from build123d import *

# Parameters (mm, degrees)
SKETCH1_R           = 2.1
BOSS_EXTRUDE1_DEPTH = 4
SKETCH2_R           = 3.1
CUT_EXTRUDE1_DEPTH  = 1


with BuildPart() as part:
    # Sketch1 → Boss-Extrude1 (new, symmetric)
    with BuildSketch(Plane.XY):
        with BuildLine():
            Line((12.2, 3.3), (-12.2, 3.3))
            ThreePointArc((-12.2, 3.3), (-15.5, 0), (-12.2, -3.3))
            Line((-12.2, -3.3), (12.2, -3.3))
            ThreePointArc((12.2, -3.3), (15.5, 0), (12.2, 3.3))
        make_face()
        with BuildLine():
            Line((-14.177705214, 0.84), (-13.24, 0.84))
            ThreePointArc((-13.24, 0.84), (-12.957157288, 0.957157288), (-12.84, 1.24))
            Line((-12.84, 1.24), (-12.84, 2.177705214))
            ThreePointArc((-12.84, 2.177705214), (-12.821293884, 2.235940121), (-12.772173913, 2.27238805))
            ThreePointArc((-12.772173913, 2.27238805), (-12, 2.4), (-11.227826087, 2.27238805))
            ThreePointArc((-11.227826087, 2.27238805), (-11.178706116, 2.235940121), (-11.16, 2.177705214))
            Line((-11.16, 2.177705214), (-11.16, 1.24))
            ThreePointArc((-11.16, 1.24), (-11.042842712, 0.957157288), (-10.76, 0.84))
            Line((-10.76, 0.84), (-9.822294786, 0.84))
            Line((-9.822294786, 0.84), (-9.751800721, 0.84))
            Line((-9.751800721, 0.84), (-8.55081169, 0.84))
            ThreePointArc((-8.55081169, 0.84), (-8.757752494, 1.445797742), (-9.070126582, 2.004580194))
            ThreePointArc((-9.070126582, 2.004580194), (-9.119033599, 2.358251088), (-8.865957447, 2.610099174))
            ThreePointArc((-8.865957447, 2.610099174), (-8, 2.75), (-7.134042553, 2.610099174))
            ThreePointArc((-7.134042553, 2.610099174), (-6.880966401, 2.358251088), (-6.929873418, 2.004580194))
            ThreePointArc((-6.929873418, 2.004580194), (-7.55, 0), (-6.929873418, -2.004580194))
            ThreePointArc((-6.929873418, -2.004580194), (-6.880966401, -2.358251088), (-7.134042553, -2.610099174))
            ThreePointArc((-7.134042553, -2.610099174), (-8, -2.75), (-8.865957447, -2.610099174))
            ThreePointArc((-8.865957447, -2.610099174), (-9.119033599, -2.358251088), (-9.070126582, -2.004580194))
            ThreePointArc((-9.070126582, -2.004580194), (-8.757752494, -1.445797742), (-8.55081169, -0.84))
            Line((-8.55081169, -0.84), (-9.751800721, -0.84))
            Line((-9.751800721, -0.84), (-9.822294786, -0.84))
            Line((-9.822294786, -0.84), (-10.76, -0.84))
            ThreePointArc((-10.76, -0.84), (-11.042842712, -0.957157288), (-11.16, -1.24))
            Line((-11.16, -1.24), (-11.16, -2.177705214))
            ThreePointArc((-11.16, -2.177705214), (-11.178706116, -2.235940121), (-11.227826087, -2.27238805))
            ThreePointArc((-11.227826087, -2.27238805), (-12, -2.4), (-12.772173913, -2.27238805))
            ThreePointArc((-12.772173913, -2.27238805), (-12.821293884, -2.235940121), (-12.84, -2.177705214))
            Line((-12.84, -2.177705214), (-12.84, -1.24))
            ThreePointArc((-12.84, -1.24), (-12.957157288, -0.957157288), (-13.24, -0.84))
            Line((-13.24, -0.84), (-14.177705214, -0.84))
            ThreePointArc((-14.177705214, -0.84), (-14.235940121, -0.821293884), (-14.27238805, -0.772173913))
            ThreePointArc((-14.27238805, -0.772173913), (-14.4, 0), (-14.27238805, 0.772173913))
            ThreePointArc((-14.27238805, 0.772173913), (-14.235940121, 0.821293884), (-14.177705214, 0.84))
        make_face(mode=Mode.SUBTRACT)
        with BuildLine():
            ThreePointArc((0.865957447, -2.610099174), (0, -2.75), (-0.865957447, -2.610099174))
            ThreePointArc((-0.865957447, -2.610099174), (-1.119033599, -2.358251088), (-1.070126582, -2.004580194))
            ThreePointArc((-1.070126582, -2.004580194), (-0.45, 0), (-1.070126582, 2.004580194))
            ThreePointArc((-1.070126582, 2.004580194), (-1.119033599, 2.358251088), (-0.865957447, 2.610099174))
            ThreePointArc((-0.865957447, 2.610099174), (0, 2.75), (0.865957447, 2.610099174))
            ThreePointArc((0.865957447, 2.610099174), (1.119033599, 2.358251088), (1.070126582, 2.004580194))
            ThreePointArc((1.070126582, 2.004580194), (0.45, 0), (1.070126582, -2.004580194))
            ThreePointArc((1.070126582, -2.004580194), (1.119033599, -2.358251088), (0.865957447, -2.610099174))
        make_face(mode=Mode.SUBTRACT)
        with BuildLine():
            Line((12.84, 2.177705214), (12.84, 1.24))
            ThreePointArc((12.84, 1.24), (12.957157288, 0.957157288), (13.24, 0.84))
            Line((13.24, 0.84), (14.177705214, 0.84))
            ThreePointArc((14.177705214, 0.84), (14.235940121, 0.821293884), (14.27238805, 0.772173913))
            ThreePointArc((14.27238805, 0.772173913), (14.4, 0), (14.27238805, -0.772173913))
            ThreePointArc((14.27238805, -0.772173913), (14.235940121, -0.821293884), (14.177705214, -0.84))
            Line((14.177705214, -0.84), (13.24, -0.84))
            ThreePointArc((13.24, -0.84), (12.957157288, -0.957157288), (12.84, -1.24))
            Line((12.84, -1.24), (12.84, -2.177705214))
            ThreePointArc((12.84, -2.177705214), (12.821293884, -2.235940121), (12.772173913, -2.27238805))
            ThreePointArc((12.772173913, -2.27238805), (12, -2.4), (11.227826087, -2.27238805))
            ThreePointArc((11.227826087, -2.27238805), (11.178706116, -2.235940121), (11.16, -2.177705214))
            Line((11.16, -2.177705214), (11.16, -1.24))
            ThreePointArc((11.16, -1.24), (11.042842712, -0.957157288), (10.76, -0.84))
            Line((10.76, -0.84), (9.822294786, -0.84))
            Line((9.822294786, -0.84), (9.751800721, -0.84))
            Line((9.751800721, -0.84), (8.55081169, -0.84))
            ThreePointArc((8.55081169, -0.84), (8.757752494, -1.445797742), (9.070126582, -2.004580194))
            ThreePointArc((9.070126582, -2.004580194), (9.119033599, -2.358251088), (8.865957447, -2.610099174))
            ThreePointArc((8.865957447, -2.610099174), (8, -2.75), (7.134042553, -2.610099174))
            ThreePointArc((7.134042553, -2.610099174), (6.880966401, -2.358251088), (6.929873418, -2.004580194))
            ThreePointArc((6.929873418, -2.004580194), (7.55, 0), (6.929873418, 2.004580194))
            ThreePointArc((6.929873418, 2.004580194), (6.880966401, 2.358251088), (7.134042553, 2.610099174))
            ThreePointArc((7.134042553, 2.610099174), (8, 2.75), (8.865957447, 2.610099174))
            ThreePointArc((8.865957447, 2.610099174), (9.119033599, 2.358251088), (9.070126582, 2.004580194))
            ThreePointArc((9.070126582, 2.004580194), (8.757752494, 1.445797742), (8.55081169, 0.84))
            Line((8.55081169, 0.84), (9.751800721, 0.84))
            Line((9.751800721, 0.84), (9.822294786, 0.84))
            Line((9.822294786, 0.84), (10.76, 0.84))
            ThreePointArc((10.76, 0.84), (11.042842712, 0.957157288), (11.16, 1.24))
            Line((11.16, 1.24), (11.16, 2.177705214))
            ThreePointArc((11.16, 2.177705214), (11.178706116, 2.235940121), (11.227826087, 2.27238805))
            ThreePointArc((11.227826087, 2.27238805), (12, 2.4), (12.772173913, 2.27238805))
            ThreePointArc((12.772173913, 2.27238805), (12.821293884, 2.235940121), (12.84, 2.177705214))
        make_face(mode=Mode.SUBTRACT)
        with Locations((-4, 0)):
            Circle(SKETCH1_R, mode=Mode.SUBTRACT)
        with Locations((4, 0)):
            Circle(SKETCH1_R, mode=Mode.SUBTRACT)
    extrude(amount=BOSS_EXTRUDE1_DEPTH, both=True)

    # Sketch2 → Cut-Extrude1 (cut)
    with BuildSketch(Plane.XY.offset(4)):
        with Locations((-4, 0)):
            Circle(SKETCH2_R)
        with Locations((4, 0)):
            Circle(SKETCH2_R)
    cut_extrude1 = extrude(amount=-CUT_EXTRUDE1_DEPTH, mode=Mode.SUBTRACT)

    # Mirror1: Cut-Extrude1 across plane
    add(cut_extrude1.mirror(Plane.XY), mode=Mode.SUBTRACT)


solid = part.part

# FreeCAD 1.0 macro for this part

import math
import FreeCAD as App
import Part
import Sketcher
Q = App.Units.Quantity

doc = App.newDocument("Part")
params = doc.addObject("Spreadsheet::Sheet", "Params")
for row, (alias, value) in enumerate([
    ("sketch1_diameter", "4.2 mm"),
    ("sketch1_radius", "3.3 mm"),
    ("sketch1_radius2", "0.1 mm"),
    ("sketch1_radius3", "0.4 mm"),
    ("sketch1_radius4", "2.4 mm"),
    ("pad1_length", "8 mm"),
    ("sketch2_diameter", "6.2 mm"),
    ("pocket1_length", "1 mm"),
], start=1):
    params.set(f"A{row}", alias)
    params.set(f"B{row}", "=" + value)
    params.setAlias(f"B{row}", alias)

body = doc.addObject("PartDesign::Body", "Body")

# Sketch on XY plane
sketch1 = doc.addObject("Sketcher::SketchObject", "Sketch")
body.addObject(sketch1)
sketch1.AttachmentSupport = (doc.XY_Plane, [""])
sketch1.MapMode = "FlatFace"
sketch1.addGeometry([
    Part.LineSegment(App.Vector(12.2, 3.3, 0), App.Vector(-12.2, 3.3, 0)),  # 0
    Part.ArcOfCircle(Part.Circle(App.Vector(-12.2, 0, 0), App.Vector(0, 0, 1), 3.3), math.radians(90), math.radians(270)),  # 1
    Part.LineSegment(App.Vector(-12.2, -3.3, 0), App.Vector(12.2, -3.3, 0)),  # 2
    Part.ArcOfCircle(Part.Circle(App.Vector(12.2, 0, 0), App.Vector(0, 0, 1), 3.3), math.radians(-90), math.radians(90)),  # 3
    Part.ArcOfCircle(Part.Circle(App.Vector(-14.177705, 0.74, 0), App.Vector(0, 0, 1), 0.1), math.radians(90.000001), math.radians(161.231866)),  # 4
    Part.LineSegment(App.Vector(-14.177705, 0.84, 0), App.Vector(-13.24, 0.84, 0)),  # 5
    Part.ArcOfCircle(Part.Circle(App.Vector(-13.24, 1.24, 0), App.Vector(0, 0, 1), 0.4), math.radians(-90), math.radians(0)),  # 6
    Part.LineSegment(App.Vector(-12.84, 1.24, 0), App.Vector(-12.84, 2.177705, 0)),  # 7
    Part.ArcOfCircle(Part.Circle(App.Vector(-12.74, 2.177705, 0), App.Vector(0, 0, 1), 0.1), math.radians(108.768134), math.radians(179.999999)),  # 8
    Part.ArcOfCircle(Part.Circle(App.Vector(-12, 0, 0), App.Vector(0, 0, 1), 2.4), math.radians(71.231867), math.radians(108.768133)),  # 9
    Part.ArcOfCircle(Part.Circle(App.Vector(-11.26, 2.177705, 0), App.Vector(0, 0, 1), 0.1), math.radians(0.000001), math.radians(71.231866)),  # 10
    Part.LineSegment(App.Vector(-11.16, 2.177705, 0), App.Vector(-11.16, 1.24, 0)),  # 11
    Part.ArcOfCircle(Part.Circle(App.Vector(-10.76, 1.24, 0), App.Vector(0, 0, 1), 0.4), math.radians(-180), math.radians(-90)),  # 12
    Part.LineSegment(App.Vector(-10.76, 0.84, 0), App.Vector(-8.550812, 0.84, 0)),  # 13
    Part.ArcOfCircle(Part.Circle(App.Vector(-12, 0, 0), App.Vector(0, 0, 1), 3.55), math.radians(13.687119), math.radians(34.379412)),  # 14
    Part.ArcOfCircle(Part.Circle(App.Vector(-8.74, 2.230448, 0), App.Vector(0, 0, 1), 0.4), math.radians(108.354392), math.radians(214.379412)),  # 15
    Part.ArcOfCircle(Part.Circle(App.Vector(-8, 0, 0), App.Vector(0, 0, 1), 2.75), math.radians(71.645608), math.radians(108.354392)),  # 16
    Part.ArcOfCircle(Part.Circle(App.Vector(-7.26, 2.230448, 0), App.Vector(0, 0, 1), 0.4), math.radians(-34.379412), math.radians(71.645608)),  # 17
    Part.ArcOfCircle(Part.Circle(App.Vector(-4, 0, 0), App.Vector(0, 0, 1), 3.55), math.radians(145.620588), math.radians(214.379412)),  # 18
    Part.ArcOfCircle(Part.Circle(App.Vector(-7.26, -2.230448, 0), App.Vector(0, 0, 1), 0.4), math.radians(-71.645608), math.radians(34.379412)),  # 19
    Part.ArcOfCircle(Part.Circle(App.Vector(-8, 0, 0), App.Vector(0, 0, 1), 2.75), math.radians(-108.354392), math.radians(-71.645608)),  # 20
    Part.ArcOfCircle(Part.Circle(App.Vector(-8.74, -2.230448, 0), App.Vector(0, 0, 1), 0.4), math.radians(145.620588), math.radians(251.645608)),  # 21
    Part.ArcOfCircle(Part.Circle(App.Vector(-12, 0, 0), App.Vector(0, 0, 1), 3.55), math.radians(-34.379412), math.radians(-13.687119)),  # 22
    Part.LineSegment(App.Vector(-8.550812, -0.84, 0), App.Vector(-10.76, -0.84, 0)),  # 23
    Part.ArcOfCircle(Part.Circle(App.Vector(-10.76, -1.24, 0), App.Vector(0, 0, 1), 0.4), math.radians(90), math.radians(180)),  # 24
    Part.LineSegment(App.Vector(-11.16, -1.24, 0), App.Vector(-11.16, -2.177705, 0)),  # 25
    Part.ArcOfCircle(Part.Circle(App.Vector(-11.26, -2.177705, 0), App.Vector(0, 0, 1), 0.1), math.radians(-71.231866), math.radians(-0.000001)),  # 26
    Part.ArcOfCircle(Part.Circle(App.Vector(-12, 0, 0), App.Vector(0, 0, 1), 2.4), math.radians(-108.768133), math.radians(-71.231867)),  # 27
    Part.ArcOfCircle(Part.Circle(App.Vector(-12.74, -2.177705, 0), App.Vector(0, 0, 1), 0.1), math.radians(-179.999999), math.radians(-108.768134)),  # 28
    Part.LineSegment(App.Vector(-12.84, -2.177705, 0), App.Vector(-12.84, -1.24, 0)),  # 29
    Part.ArcOfCircle(Part.Circle(App.Vector(-13.24, -1.24, 0), App.Vector(0, 0, 1), 0.4), math.radians(0), math.radians(90)),  # 30
    Part.LineSegment(App.Vector(-13.24, -0.84, 0), App.Vector(-14.177705, -0.84, 0)),  # 31
    Part.ArcOfCircle(Part.Circle(App.Vector(-14.177705, -0.74, 0), App.Vector(0, 0, 1), 0.1), math.radians(-161.231866), math.radians(-90.000001)),  # 32
    Part.ArcOfCircle(Part.Circle(App.Vector(-12, 0, 0), App.Vector(0, 0, 1), 2.4), math.radians(161.231867), math.radians(198.768133)),  # 33
    Part.Circle(App.Vector(-4, 0, 0), App.Vector(0, 0, 1), 2.1),  # 34
    Part.ArcOfCircle(Part.Circle(App.Vector(0.74, -2.230448, 0), App.Vector(0, 0, 1), 0.4), math.radians(-71.645608), math.radians(34.379412)),  # 35
    Part.ArcOfCircle(Part.Circle(App.Vector(0, 0, 0), App.Vector(0, 0, 1), 2.75), math.radians(-108.354392), math.radians(-71.645608)),  # 36
    Part.ArcOfCircle(Part.Circle(App.Vector(-0.74, -2.230448, 0), App.Vector(0, 0, 1), 0.4), math.radians(145.620588), math.radians(251.645608)),  # 37
    Part.ArcOfCircle(Part.Circle(App.Vector(-4, 0, 0), App.Vector(0, 0, 1), 3.55), math.radians(-34.379412), math.radians(34.379412)),  # 38
    Part.ArcOfCircle(Part.Circle(App.Vector(-0.74, 2.230448, 0), App.Vector(0, 0, 1), 0.4), math.radians(108.354392), math.radians(214.379412)),  # 39
    Part.ArcOfCircle(Part.Circle(App.Vector(0, 0, 0), App.Vector(0, 0, 1), 2.75), math.radians(71.645608), math.radians(108.354392)),  # 40
    Part.ArcOfCircle(Part.Circle(App.Vector(0.74, 2.230448, 0), App.Vector(0, 0, 1), 0.4), math.radians(-34.379412), math.radians(71.645608)),  # 41
    Part.ArcOfCircle(Part.Circle(App.Vector(4, 0, 0), App.Vector(0, 0, 1), 3.55), math.radians(145.620588), math.radians(214.379412)),  # 42
    Part.Circle(App.Vector(4, 0, 0), App.Vector(0, 0, 1), 2.1),  # 43
    Part.ArcOfCircle(Part.Circle(App.Vector(12.74, 2.177705, 0), App.Vector(0, 0, 1), 0.1), math.radians(0.000001), math.radians(71.231866)),  # 44
    Part.LineSegment(App.Vector(12.84, 2.177705, 0), App.Vector(12.84, 1.24, 0)),  # 45
    Part.ArcOfCircle(Part.Circle(App.Vector(13.24, 1.24, 0), App.Vector(0, 0, 1), 0.4), math.radians(-180), math.radians(-90)),  # 46
    Part.LineSegment(App.Vector(13.24, 0.84, 0), App.Vector(14.177705, 0.84, 0)),  # 47
    Part.ArcOfCircle(Part.Circle(App.Vector(14.177705, 0.74, 0), App.Vector(0, 0, 1), 0.1), math.radians(18.768134), math.radians(89.999999)),  # 48
    Part.ArcOfCircle(Part.Circle(App.Vector(12, 0, 0), App.Vector(0, 0, 1), 2.4), math.radians(-18.768133), math.radians(18.768133)),  # 49
    Part.ArcOfCircle(Part.Circle(App.Vector(14.177705, -0.74, 0), App.Vector(0, 0, 1), 0.1), math.radians(-89.999999), math.radians(-18.768134)),  # 50
    Part.LineSegment(App.Vector(14.177705, -0.84, 0), App.Vector(13.24, -0.84, 0)),  # 51
    Part.ArcOfCircle(Part.Circle(App.Vector(13.24, -1.24, 0), App.Vector(0, 0, 1), 0.4), math.radians(90), math.radians(180)),  # 52
    Part.LineSegment(App.Vector(12.84, -1.24, 0), App.Vector(12.84, -2.177705, 0)),  # 53
    Part.ArcOfCircle(Part.Circle(App.Vector(12.74, -2.177705, 0), App.Vector(0, 0, 1), 0.1), math.radians(-71.231866), math.radians(-0.000001)),  # 54
    Part.ArcOfCircle(Part.Circle(App.Vector(12, 0, 0), App.Vector(0, 0, 1), 2.4), math.radians(-108.768133), math.radians(-71.231867)),  # 55
    Part.ArcOfCircle(Part.Circle(App.Vector(11.26, -2.177705, 0), App.Vector(0, 0, 1), 0.1), math.radians(-179.999999), math.radians(-108.768134)),  # 56
    Part.LineSegment(App.Vector(11.16, -2.177705, 0), App.Vector(11.16, -1.24, 0)),  # 57
    Part.ArcOfCircle(Part.Circle(App.Vector(10.76, -1.24, 0), App.Vector(0, 0, 1), 0.4), math.radians(0), math.radians(90)),  # 58
    Part.LineSegment(App.Vector(10.76, -0.84, 0), App.Vector(8.550812, -0.84, 0)),  # 59
    Part.ArcOfCircle(Part.Circle(App.Vector(12, 0, 0), App.Vector(0, 0, 1), 3.55), math.radians(-166.312881), math.radians(-145.620588)),  # 60
    Part.ArcOfCircle(Part.Circle(App.Vector(8.74, -2.230448, 0), App.Vector(0, 0, 1), 0.4), math.radians(-71.645608), math.radians(34.379412)),  # 61
    Part.ArcOfCircle(Part.Circle(App.Vector(8, 0, 0), App.Vector(0, 0, 1), 2.75), math.radians(-108.354392), math.radians(-71.645608)),  # 62
    Part.ArcOfCircle(Part.Circle(App.Vector(7.26, -2.230448, 0), App.Vector(0, 0, 1), 0.4), math.radians(145.620588), math.radians(251.645608)),  # 63
    Part.ArcOfCircle(Part.Circle(App.Vector(4, 0, 0), App.Vector(0, 0, 1), 3.55), math.radians(-34.379412), math.radians(34.379412)),  # 64
    Part.ArcOfCircle(Part.Circle(App.Vector(7.26, 2.230448, 0), App.Vector(0, 0, 1), 0.4), math.radians(108.354392), math.radians(214.379412)),  # 65
    Part.ArcOfCircle(Part.Circle(App.Vector(8, 0, 0), App.Vector(0, 0, 1), 2.75), math.radians(71.645608), math.radians(108.354392)),  # 66
    Part.ArcOfCircle(Part.Circle(App.Vector(8.74, 2.230448, 0), App.Vector(0, 0, 1), 0.4), math.radians(-34.379412), math.radians(71.645608)),  # 67
    Part.ArcOfCircle(Part.Circle(App.Vector(12, 0, 0), App.Vector(0, 0, 1), 3.55), math.radians(145.620588), math.radians(166.312881)),  # 68
    Part.LineSegment(App.Vector(8.550812, 0.84, 0), App.Vector(10.76, 0.84, 0)),  # 69
    Part.ArcOfCircle(Part.Circle(App.Vector(10.76, 1.24, 0), App.Vector(0, 0, 1), 0.4), math.radians(-90), math.radians(0)),  # 70
    Part.LineSegment(App.Vector(11.16, 1.24, 0), App.Vector(11.16, 2.177705, 0)),  # 71
    Part.ArcOfCircle(Part.Circle(App.Vector(11.26, 2.177705, 0), App.Vector(0, 0, 1), 0.1), math.radians(108.768134), math.radians(179.999999)),  # 72
    Part.ArcOfCircle(Part.Circle(App.Vector(12, 0, 0), App.Vector(0, 0, 1), 2.4), math.radians(71.231867), math.radians(108.768133)),  # 73
], False)
sketch1.addConstraint([
    Sketcher.Constraint("Tangent", 0, 2, 1, 1),
    Sketcher.Constraint("Tangent", 1, 2, 2, 1),
    Sketcher.Constraint("Tangent", 2, 2, 3, 1),
    Sketcher.Constraint("Tangent", 3, 2, 0, 1),
    Sketcher.Constraint("Tangent", 4, 1, 5, 1),
    Sketcher.Constraint("Tangent", 5, 2, 6, 1),
    Sketcher.Constraint("Tangent", 6, 2, 7, 1),
    Sketcher.Constraint("Tangent", 7, 2, 8, 2),
    Sketcher.Constraint("Tangent", 8, 1, 9, 2),
    Sketcher.Constraint("Tangent", 9, 1, 10, 2),
    Sketcher.Constraint("Tangent", 10, 1, 11, 1),
    Sketcher.Constraint("Tangent", 11, 2, 12, 1),
    Sketcher.Constraint("Tangent", 12, 2, 13, 1),
    Sketcher.Constraint("Coincident", 13, 2, 14, 1),
    Sketcher.Constraint("Tangent", 14, 2, 15, 2),
    Sketcher.Constraint("Tangent", 15, 1, 16, 2),
    Sketcher.Constraint("Tangent", 16, 1, 17, 2),
    Sketcher.Constraint("Tangent", 17, 1, 18, 1),
    Sketcher.Constraint("Tangent", 18, 2, 19, 2),
    Sketcher.Constraint("Tangent", 19, 1, 20, 2),
    Sketcher.Constraint("Tangent", 20, 1, 21, 2),
    Sketcher.Constraint("Tangent", 21, 1, 22, 1),
    Sketcher.Constraint("Coincident", 22, 2, 23, 1),
    Sketcher.Constraint("Tangent", 23, 2, 24, 1),
    Sketcher.Constraint("Tangent", 24, 2, 25, 1),
    Sketcher.Constraint("Tangent", 25, 2, 26, 2),
    Sketcher.Constraint("Tangent", 26, 1, 27, 2),
    Sketcher.Constraint("Tangent", 27, 1, 28, 2),
    Sketcher.Constraint("Tangent", 28, 1, 29, 1),
    Sketcher.Constraint("Tangent", 29, 2, 30, 1),
    Sketcher.Constraint("Tangent", 30, 2, 31, 1),
    Sketcher.Constraint("Tangent", 31, 2, 32, 2),
    Sketcher.Constraint("Tangent", 32, 1, 33, 2),
    Sketcher.Constraint("Tangent", 33, 1, 4, 2),
    Sketcher.Constraint("Tangent", 35, 1, 36, 2),
    Sketcher.Constraint("Tangent", 36, 1, 37, 2),
    Sketcher.Constraint("Tangent", 37, 1, 38, 1),
    Sketcher.Constraint("Tangent", 38, 2, 39, 2),
    Sketcher.Constraint("Tangent", 39, 1, 40, 2),
    Sketcher.Constraint("Tangent", 40, 1, 41, 2),
    Sketcher.Constraint("Tangent", 41, 1, 42, 1),
    Sketcher.Constraint("Tangent", 42, 2, 35, 2),
    Sketcher.Constraint("Tangent", 44, 1, 45, 1),
    Sketcher.Constraint("Tangent", 45, 2, 46, 1),
    Sketcher.Constraint("Tangent", 46, 2, 47, 1),
    Sketcher.Constraint("Tangent", 47, 2, 48, 2),
    Sketcher.Constraint("Tangent", 48, 1, 49, 2),
    Sketcher.Constraint("Tangent", 49, 1, 50, 2),
    Sketcher.Constraint("Tangent", 50, 1, 51, 1),
    Sketcher.Constraint("Tangent", 51, 2, 52, 1),
    Sketcher.Constraint("Tangent", 52, 2, 53, 1),
    Sketcher.Constraint("Tangent", 53, 2, 54, 2),
    Sketcher.Constraint("Tangent", 54, 1, 55, 2),
    Sketcher.Constraint("Tangent", 55, 1, 56, 2),
    Sketcher.Constraint("Tangent", 56, 1, 57, 1),
    Sketcher.Constraint("Tangent", 57, 2, 58, 1),
    Sketcher.Constraint("Tangent", 58, 2, 59, 1),
    Sketcher.Constraint("Coincident", 59, 2, 60, 1),
    Sketcher.Constraint("Tangent", 60, 2, 61, 2),
    Sketcher.Constraint("Tangent", 61, 1, 62, 2),
    Sketcher.Constraint("Tangent", 62, 1, 63, 2),
    Sketcher.Constraint("Tangent", 63, 1, 64, 1),
    Sketcher.Constraint("Tangent", 64, 2, 65, 2),
    Sketcher.Constraint("Tangent", 65, 1, 66, 2),
    Sketcher.Constraint("Tangent", 66, 1, 67, 2),
    Sketcher.Constraint("Tangent", 67, 1, 68, 1),
    Sketcher.Constraint("Coincident", 68, 2, 69, 1),
    Sketcher.Constraint("Tangent", 69, 2, 70, 1),
    Sketcher.Constraint("Tangent", 70, 2, 71, 1),
    Sketcher.Constraint("Tangent", 71, 2, 72, 2),
    Sketcher.Constraint("Tangent", 72, 1, 73, 2),
    Sketcher.Constraint("Tangent", 73, 1, 44, 2),
    Sketcher.Constraint("Horizontal", 0),
    Sketcher.Constraint("Horizontal", 2),
    Sketcher.Constraint("Horizontal", 5),
    Sketcher.Constraint("Vertical", 7),
    Sketcher.Constraint("Vertical", 11),
    Sketcher.Constraint("Horizontal", 13),
    Sketcher.Constraint("Horizontal", 23),
    Sketcher.Constraint("Vertical", 25),
    Sketcher.Constraint("Vertical", 29),
    Sketcher.Constraint("Horizontal", 31),
    Sketcher.Constraint("Vertical", 45),
    Sketcher.Constraint("Horizontal", 47),
    Sketcher.Constraint("Horizontal", 51),
    Sketcher.Constraint("Vertical", 53),
    Sketcher.Constraint("Vertical", 57),
    Sketcher.Constraint("Horizontal", 59),
    Sketcher.Constraint("Horizontal", 69),
    Sketcher.Constraint("Vertical", 71),
    Sketcher.Constraint("Coincident", 36, 3, -1, 1),
    Sketcher.Constraint("Coincident", 40, 3, -1, 1),
    Sketcher.Constraint("Coincident", 14, 3, 9, 3),
    Sketcher.Constraint("Coincident", 20, 3, 16, 3),
    Sketcher.Constraint("Coincident", 22, 3, 9, 3),
    Sketcher.Constraint("Coincident", 27, 3, 9, 3),
    Sketcher.Constraint("Coincident", 33, 3, 9, 3),
    Sketcher.Constraint("Coincident", 34, 3, 18, 3),
    Sketcher.Constraint("Coincident", 38, 3, 18, 3),
    Sketcher.Constraint("Coincident", 43, 3, 42, 3),
    Sketcher.Constraint("Coincident", 55, 3, 49, 3),
    Sketcher.Constraint("Coincident", 60, 3, 49, 3),
    Sketcher.Constraint("Coincident", 64, 3, 42, 3),
    Sketcher.Constraint("Coincident", 66, 3, 62, 3),
    Sketcher.Constraint("Coincident", 68, 3, 49, 3),
    Sketcher.Constraint("Coincident", 73, 3, 49, 3),
    Sketcher.Constraint("Equal", 4, 8),
    Sketcher.Constraint("Equal", 8, 10),
    Sketcher.Constraint("Equal", 6, 12),
    Sketcher.Constraint("Equal", 12, 15),
    Sketcher.Constraint("Equal", 15, 17),
    Sketcher.Constraint("Equal", 14, 18),
    Sketcher.Constraint("Equal", 17, 19),
    Sketcher.Constraint("Equal", 16, 20),
    Sketcher.Constraint("Equal", 19, 21),
    Sketcher.Constraint("Equal", 18, 22),
    Sketcher.Constraint("Equal", 21, 24),
    Sketcher.Constraint("Equal", 10, 26),
    Sketcher.Constraint("Equal", 9, 27),
    Sketcher.Constraint("Equal", 26, 28),
    Sketcher.Constraint("Equal", 24, 30),
    Sketcher.Constraint("Equal", 28, 32),
    Sketcher.Constraint("Equal", 27, 33),
    Sketcher.Constraint("Equal", 30, 35),
    Sketcher.Constraint("Equal", 20, 36),
    Sketcher.Constraint("Equal", 35, 37),
    Sketcher.Constraint("Equal", 22, 38),
    Sketcher.Constraint("Equal", 37, 39),
    Sketcher.Constraint("Equal", 36, 40),
    Sketcher.Constraint("Equal", 39, 41),
    Sketcher.Constraint("Equal", 38, 42),
    Sketcher.Constraint("Equal", 34, 43),
    Sketcher.Constraint("Equal", 32, 44),
    Sketcher.Constraint("Equal", 41, 46),
    Sketcher.Constraint("Equal", 44, 48),
    Sketcher.Constraint("Equal", 33, 49),
    Sketcher.Constraint("Equal", 48, 50),
    Sketcher.Constraint("Equal", 46, 52),
    Sketcher.Constraint("Equal", 50, 54),
    Sketcher.Constraint("Equal", 49, 55),
    Sketcher.Constraint("Equal", 54, 56),
    Sketcher.Constraint("Equal", 52, 58),
    Sketcher.Constraint("Equal", 42, 60),
    Sketcher.Constraint("Equal", 58, 61),
    Sketcher.Constraint("Equal", 40, 62),
    Sketcher.Constraint("Equal", 61, 63),
    Sketcher.Constraint("Equal", 60, 64),
    Sketcher.Constraint("Equal", 63, 65),
    Sketcher.Constraint("Equal", 62, 66),
    Sketcher.Constraint("Equal", 65, 67),
    Sketcher.Constraint("Equal", 64, 68),
    Sketcher.Constraint("Equal", 67, 70),
    Sketcher.Constraint("Equal", 56, 72),
    Sketcher.Constraint("Equal", 55, 73),
    Sketcher.Constraint("Symmetric", 1, 3, 3, 3, -1, 1),
    Sketcher.Constraint("Symmetric", 18, 3, 42, 3, -1, 1),
    Sketcher.Constraint("Symmetric", 28, 3, 44, 3, -1, 1),
    Sketcher.Constraint("Symmetric", 32, 3, 48, 3, -1, 1),
    Sketcher.Constraint("Symmetric", 6, 3, 52, 3, -1, 1),
    Sketcher.Constraint("Symmetric", 12, 3, 58, 3, -1, 1),
    Sketcher.Constraint("Symmetric", 16, 3, 62, 3, -1, 1),
    Sketcher.Constraint("Symmetric", 24, 3, 70, 3, -1, 1),
    Sketcher.Constraint("Symmetric", 8, 3, 44, 3, -2),
    Sketcher.Constraint("Symmetric", 24, 3, 58, 3, -2),
    Sketcher.Constraint("Symmetric", 19, 3, 63, 3, -2),
    Sketcher.Constraint("Horizontal", 8, 3, 10, 3),
    Sketcher.Constraint("Horizontal", 6, 3, 12, 3),
    Sketcher.Constraint("Horizontal", 15, 3, 17, 3),
    Sketcher.Constraint("Horizontal", 24, 3, 30, 3),
    Sketcher.Constraint("Horizontal", 21, 3, 35, 3),
    Sketcher.Constraint("Equal", 51, 7),
    Sketcher.Constraint("Diameter", 34, Q("4.2 mm")),
    Sketcher.Constraint("Radius", 1, Q("3.3 mm")),
    Sketcher.Constraint("Radius", 4, Q("0.1 mm")),
    Sketcher.Constraint("Radius", 6, Q("0.4 mm")),
    Sketcher.Constraint("Radius", 9, Q("2.4 mm")),
    Sketcher.Constraint("Radius", 14, Q("3.55 mm")),
    Sketcher.Constraint("Radius", 16, Q("2.75 mm")),
    Sketcher.Constraint("DistanceX", 0, 2, 0, 1, Q("24.4 mm")),
    Sketcher.Constraint("DistanceX", 9, 3, -1, 1, Q("12 mm")),
    Sketcher.Constraint("DistanceY", -1, 1, 4, 3, Q("0.74 mm")),
])
sketch1.setExpression("Constraints[171]", "Params.sketch1_diameter")
sketch1.setExpression("Constraints[172]", "Params.sketch1_radius")
sketch1.setExpression("Constraints[173]", "Params.sketch1_radius2")
sketch1.setExpression("Constraints[174]", "Params.sketch1_radius3")
sketch1.setExpression("Constraints[175]", "Params.sketch1_radius4")
pad1 = doc.addObject("PartDesign::Pad", "Pad")
body.addObject(pad1)
pad1.Profile = sketch1
pad1.setExpression("Length", "Params.pad1_length")
pad1.Midplane = True

# Sketch on XY plane
sketch2 = doc.addObject("Sketcher::SketchObject", "Sketch001")
body.addObject(sketch2)
sketch2.AttachmentSupport = (doc.XY_Plane, [""])
sketch2.MapMode = "FlatFace"
sketch2.AttachmentOffset = App.Placement(App.Vector(0, 0, 4), App.Rotation())
sketch2.addGeometry([
    Part.Circle(App.Vector(-4, 0, 0), App.Vector(0, 0, 1), 3.1),
    Part.Circle(App.Vector(4, 0, 0), App.Vector(0, 0, 1), 3.1),
], False)
sketch2.addConstraint([
    Sketcher.Constraint("Equal", 0, 1),
    Sketcher.Constraint("Symmetric", 0, 3, 1, 3, -1, 1),
    Sketcher.Constraint("PointOnObject", 0, 3, -1),
    Sketcher.Constraint("Diameter", 0, Q("6.2 mm")),
    Sketcher.Constraint("DistanceX", 0, 3, -1, 1, Q("4 mm")),
])
sketch2.setExpression("Constraints[3]", "Params.sketch2_diameter")
pocket1 = doc.addObject("PartDesign::Pocket", "Pocket")
body.addObject(pocket1)
pocket1.Profile = sketch2
pocket1.setExpression("Length", "Params.pocket1_length")
doc.recompute()

mirrored = doc.addObject("PartDesign::Mirrored", "Mirrored")
body.addObject(mirrored)
mirrored.Originals = [pocket1]
mirrored.MirrorPlane = (doc.XY_Plane, [""])
body.Tip = mirrored

doc.recompute()
